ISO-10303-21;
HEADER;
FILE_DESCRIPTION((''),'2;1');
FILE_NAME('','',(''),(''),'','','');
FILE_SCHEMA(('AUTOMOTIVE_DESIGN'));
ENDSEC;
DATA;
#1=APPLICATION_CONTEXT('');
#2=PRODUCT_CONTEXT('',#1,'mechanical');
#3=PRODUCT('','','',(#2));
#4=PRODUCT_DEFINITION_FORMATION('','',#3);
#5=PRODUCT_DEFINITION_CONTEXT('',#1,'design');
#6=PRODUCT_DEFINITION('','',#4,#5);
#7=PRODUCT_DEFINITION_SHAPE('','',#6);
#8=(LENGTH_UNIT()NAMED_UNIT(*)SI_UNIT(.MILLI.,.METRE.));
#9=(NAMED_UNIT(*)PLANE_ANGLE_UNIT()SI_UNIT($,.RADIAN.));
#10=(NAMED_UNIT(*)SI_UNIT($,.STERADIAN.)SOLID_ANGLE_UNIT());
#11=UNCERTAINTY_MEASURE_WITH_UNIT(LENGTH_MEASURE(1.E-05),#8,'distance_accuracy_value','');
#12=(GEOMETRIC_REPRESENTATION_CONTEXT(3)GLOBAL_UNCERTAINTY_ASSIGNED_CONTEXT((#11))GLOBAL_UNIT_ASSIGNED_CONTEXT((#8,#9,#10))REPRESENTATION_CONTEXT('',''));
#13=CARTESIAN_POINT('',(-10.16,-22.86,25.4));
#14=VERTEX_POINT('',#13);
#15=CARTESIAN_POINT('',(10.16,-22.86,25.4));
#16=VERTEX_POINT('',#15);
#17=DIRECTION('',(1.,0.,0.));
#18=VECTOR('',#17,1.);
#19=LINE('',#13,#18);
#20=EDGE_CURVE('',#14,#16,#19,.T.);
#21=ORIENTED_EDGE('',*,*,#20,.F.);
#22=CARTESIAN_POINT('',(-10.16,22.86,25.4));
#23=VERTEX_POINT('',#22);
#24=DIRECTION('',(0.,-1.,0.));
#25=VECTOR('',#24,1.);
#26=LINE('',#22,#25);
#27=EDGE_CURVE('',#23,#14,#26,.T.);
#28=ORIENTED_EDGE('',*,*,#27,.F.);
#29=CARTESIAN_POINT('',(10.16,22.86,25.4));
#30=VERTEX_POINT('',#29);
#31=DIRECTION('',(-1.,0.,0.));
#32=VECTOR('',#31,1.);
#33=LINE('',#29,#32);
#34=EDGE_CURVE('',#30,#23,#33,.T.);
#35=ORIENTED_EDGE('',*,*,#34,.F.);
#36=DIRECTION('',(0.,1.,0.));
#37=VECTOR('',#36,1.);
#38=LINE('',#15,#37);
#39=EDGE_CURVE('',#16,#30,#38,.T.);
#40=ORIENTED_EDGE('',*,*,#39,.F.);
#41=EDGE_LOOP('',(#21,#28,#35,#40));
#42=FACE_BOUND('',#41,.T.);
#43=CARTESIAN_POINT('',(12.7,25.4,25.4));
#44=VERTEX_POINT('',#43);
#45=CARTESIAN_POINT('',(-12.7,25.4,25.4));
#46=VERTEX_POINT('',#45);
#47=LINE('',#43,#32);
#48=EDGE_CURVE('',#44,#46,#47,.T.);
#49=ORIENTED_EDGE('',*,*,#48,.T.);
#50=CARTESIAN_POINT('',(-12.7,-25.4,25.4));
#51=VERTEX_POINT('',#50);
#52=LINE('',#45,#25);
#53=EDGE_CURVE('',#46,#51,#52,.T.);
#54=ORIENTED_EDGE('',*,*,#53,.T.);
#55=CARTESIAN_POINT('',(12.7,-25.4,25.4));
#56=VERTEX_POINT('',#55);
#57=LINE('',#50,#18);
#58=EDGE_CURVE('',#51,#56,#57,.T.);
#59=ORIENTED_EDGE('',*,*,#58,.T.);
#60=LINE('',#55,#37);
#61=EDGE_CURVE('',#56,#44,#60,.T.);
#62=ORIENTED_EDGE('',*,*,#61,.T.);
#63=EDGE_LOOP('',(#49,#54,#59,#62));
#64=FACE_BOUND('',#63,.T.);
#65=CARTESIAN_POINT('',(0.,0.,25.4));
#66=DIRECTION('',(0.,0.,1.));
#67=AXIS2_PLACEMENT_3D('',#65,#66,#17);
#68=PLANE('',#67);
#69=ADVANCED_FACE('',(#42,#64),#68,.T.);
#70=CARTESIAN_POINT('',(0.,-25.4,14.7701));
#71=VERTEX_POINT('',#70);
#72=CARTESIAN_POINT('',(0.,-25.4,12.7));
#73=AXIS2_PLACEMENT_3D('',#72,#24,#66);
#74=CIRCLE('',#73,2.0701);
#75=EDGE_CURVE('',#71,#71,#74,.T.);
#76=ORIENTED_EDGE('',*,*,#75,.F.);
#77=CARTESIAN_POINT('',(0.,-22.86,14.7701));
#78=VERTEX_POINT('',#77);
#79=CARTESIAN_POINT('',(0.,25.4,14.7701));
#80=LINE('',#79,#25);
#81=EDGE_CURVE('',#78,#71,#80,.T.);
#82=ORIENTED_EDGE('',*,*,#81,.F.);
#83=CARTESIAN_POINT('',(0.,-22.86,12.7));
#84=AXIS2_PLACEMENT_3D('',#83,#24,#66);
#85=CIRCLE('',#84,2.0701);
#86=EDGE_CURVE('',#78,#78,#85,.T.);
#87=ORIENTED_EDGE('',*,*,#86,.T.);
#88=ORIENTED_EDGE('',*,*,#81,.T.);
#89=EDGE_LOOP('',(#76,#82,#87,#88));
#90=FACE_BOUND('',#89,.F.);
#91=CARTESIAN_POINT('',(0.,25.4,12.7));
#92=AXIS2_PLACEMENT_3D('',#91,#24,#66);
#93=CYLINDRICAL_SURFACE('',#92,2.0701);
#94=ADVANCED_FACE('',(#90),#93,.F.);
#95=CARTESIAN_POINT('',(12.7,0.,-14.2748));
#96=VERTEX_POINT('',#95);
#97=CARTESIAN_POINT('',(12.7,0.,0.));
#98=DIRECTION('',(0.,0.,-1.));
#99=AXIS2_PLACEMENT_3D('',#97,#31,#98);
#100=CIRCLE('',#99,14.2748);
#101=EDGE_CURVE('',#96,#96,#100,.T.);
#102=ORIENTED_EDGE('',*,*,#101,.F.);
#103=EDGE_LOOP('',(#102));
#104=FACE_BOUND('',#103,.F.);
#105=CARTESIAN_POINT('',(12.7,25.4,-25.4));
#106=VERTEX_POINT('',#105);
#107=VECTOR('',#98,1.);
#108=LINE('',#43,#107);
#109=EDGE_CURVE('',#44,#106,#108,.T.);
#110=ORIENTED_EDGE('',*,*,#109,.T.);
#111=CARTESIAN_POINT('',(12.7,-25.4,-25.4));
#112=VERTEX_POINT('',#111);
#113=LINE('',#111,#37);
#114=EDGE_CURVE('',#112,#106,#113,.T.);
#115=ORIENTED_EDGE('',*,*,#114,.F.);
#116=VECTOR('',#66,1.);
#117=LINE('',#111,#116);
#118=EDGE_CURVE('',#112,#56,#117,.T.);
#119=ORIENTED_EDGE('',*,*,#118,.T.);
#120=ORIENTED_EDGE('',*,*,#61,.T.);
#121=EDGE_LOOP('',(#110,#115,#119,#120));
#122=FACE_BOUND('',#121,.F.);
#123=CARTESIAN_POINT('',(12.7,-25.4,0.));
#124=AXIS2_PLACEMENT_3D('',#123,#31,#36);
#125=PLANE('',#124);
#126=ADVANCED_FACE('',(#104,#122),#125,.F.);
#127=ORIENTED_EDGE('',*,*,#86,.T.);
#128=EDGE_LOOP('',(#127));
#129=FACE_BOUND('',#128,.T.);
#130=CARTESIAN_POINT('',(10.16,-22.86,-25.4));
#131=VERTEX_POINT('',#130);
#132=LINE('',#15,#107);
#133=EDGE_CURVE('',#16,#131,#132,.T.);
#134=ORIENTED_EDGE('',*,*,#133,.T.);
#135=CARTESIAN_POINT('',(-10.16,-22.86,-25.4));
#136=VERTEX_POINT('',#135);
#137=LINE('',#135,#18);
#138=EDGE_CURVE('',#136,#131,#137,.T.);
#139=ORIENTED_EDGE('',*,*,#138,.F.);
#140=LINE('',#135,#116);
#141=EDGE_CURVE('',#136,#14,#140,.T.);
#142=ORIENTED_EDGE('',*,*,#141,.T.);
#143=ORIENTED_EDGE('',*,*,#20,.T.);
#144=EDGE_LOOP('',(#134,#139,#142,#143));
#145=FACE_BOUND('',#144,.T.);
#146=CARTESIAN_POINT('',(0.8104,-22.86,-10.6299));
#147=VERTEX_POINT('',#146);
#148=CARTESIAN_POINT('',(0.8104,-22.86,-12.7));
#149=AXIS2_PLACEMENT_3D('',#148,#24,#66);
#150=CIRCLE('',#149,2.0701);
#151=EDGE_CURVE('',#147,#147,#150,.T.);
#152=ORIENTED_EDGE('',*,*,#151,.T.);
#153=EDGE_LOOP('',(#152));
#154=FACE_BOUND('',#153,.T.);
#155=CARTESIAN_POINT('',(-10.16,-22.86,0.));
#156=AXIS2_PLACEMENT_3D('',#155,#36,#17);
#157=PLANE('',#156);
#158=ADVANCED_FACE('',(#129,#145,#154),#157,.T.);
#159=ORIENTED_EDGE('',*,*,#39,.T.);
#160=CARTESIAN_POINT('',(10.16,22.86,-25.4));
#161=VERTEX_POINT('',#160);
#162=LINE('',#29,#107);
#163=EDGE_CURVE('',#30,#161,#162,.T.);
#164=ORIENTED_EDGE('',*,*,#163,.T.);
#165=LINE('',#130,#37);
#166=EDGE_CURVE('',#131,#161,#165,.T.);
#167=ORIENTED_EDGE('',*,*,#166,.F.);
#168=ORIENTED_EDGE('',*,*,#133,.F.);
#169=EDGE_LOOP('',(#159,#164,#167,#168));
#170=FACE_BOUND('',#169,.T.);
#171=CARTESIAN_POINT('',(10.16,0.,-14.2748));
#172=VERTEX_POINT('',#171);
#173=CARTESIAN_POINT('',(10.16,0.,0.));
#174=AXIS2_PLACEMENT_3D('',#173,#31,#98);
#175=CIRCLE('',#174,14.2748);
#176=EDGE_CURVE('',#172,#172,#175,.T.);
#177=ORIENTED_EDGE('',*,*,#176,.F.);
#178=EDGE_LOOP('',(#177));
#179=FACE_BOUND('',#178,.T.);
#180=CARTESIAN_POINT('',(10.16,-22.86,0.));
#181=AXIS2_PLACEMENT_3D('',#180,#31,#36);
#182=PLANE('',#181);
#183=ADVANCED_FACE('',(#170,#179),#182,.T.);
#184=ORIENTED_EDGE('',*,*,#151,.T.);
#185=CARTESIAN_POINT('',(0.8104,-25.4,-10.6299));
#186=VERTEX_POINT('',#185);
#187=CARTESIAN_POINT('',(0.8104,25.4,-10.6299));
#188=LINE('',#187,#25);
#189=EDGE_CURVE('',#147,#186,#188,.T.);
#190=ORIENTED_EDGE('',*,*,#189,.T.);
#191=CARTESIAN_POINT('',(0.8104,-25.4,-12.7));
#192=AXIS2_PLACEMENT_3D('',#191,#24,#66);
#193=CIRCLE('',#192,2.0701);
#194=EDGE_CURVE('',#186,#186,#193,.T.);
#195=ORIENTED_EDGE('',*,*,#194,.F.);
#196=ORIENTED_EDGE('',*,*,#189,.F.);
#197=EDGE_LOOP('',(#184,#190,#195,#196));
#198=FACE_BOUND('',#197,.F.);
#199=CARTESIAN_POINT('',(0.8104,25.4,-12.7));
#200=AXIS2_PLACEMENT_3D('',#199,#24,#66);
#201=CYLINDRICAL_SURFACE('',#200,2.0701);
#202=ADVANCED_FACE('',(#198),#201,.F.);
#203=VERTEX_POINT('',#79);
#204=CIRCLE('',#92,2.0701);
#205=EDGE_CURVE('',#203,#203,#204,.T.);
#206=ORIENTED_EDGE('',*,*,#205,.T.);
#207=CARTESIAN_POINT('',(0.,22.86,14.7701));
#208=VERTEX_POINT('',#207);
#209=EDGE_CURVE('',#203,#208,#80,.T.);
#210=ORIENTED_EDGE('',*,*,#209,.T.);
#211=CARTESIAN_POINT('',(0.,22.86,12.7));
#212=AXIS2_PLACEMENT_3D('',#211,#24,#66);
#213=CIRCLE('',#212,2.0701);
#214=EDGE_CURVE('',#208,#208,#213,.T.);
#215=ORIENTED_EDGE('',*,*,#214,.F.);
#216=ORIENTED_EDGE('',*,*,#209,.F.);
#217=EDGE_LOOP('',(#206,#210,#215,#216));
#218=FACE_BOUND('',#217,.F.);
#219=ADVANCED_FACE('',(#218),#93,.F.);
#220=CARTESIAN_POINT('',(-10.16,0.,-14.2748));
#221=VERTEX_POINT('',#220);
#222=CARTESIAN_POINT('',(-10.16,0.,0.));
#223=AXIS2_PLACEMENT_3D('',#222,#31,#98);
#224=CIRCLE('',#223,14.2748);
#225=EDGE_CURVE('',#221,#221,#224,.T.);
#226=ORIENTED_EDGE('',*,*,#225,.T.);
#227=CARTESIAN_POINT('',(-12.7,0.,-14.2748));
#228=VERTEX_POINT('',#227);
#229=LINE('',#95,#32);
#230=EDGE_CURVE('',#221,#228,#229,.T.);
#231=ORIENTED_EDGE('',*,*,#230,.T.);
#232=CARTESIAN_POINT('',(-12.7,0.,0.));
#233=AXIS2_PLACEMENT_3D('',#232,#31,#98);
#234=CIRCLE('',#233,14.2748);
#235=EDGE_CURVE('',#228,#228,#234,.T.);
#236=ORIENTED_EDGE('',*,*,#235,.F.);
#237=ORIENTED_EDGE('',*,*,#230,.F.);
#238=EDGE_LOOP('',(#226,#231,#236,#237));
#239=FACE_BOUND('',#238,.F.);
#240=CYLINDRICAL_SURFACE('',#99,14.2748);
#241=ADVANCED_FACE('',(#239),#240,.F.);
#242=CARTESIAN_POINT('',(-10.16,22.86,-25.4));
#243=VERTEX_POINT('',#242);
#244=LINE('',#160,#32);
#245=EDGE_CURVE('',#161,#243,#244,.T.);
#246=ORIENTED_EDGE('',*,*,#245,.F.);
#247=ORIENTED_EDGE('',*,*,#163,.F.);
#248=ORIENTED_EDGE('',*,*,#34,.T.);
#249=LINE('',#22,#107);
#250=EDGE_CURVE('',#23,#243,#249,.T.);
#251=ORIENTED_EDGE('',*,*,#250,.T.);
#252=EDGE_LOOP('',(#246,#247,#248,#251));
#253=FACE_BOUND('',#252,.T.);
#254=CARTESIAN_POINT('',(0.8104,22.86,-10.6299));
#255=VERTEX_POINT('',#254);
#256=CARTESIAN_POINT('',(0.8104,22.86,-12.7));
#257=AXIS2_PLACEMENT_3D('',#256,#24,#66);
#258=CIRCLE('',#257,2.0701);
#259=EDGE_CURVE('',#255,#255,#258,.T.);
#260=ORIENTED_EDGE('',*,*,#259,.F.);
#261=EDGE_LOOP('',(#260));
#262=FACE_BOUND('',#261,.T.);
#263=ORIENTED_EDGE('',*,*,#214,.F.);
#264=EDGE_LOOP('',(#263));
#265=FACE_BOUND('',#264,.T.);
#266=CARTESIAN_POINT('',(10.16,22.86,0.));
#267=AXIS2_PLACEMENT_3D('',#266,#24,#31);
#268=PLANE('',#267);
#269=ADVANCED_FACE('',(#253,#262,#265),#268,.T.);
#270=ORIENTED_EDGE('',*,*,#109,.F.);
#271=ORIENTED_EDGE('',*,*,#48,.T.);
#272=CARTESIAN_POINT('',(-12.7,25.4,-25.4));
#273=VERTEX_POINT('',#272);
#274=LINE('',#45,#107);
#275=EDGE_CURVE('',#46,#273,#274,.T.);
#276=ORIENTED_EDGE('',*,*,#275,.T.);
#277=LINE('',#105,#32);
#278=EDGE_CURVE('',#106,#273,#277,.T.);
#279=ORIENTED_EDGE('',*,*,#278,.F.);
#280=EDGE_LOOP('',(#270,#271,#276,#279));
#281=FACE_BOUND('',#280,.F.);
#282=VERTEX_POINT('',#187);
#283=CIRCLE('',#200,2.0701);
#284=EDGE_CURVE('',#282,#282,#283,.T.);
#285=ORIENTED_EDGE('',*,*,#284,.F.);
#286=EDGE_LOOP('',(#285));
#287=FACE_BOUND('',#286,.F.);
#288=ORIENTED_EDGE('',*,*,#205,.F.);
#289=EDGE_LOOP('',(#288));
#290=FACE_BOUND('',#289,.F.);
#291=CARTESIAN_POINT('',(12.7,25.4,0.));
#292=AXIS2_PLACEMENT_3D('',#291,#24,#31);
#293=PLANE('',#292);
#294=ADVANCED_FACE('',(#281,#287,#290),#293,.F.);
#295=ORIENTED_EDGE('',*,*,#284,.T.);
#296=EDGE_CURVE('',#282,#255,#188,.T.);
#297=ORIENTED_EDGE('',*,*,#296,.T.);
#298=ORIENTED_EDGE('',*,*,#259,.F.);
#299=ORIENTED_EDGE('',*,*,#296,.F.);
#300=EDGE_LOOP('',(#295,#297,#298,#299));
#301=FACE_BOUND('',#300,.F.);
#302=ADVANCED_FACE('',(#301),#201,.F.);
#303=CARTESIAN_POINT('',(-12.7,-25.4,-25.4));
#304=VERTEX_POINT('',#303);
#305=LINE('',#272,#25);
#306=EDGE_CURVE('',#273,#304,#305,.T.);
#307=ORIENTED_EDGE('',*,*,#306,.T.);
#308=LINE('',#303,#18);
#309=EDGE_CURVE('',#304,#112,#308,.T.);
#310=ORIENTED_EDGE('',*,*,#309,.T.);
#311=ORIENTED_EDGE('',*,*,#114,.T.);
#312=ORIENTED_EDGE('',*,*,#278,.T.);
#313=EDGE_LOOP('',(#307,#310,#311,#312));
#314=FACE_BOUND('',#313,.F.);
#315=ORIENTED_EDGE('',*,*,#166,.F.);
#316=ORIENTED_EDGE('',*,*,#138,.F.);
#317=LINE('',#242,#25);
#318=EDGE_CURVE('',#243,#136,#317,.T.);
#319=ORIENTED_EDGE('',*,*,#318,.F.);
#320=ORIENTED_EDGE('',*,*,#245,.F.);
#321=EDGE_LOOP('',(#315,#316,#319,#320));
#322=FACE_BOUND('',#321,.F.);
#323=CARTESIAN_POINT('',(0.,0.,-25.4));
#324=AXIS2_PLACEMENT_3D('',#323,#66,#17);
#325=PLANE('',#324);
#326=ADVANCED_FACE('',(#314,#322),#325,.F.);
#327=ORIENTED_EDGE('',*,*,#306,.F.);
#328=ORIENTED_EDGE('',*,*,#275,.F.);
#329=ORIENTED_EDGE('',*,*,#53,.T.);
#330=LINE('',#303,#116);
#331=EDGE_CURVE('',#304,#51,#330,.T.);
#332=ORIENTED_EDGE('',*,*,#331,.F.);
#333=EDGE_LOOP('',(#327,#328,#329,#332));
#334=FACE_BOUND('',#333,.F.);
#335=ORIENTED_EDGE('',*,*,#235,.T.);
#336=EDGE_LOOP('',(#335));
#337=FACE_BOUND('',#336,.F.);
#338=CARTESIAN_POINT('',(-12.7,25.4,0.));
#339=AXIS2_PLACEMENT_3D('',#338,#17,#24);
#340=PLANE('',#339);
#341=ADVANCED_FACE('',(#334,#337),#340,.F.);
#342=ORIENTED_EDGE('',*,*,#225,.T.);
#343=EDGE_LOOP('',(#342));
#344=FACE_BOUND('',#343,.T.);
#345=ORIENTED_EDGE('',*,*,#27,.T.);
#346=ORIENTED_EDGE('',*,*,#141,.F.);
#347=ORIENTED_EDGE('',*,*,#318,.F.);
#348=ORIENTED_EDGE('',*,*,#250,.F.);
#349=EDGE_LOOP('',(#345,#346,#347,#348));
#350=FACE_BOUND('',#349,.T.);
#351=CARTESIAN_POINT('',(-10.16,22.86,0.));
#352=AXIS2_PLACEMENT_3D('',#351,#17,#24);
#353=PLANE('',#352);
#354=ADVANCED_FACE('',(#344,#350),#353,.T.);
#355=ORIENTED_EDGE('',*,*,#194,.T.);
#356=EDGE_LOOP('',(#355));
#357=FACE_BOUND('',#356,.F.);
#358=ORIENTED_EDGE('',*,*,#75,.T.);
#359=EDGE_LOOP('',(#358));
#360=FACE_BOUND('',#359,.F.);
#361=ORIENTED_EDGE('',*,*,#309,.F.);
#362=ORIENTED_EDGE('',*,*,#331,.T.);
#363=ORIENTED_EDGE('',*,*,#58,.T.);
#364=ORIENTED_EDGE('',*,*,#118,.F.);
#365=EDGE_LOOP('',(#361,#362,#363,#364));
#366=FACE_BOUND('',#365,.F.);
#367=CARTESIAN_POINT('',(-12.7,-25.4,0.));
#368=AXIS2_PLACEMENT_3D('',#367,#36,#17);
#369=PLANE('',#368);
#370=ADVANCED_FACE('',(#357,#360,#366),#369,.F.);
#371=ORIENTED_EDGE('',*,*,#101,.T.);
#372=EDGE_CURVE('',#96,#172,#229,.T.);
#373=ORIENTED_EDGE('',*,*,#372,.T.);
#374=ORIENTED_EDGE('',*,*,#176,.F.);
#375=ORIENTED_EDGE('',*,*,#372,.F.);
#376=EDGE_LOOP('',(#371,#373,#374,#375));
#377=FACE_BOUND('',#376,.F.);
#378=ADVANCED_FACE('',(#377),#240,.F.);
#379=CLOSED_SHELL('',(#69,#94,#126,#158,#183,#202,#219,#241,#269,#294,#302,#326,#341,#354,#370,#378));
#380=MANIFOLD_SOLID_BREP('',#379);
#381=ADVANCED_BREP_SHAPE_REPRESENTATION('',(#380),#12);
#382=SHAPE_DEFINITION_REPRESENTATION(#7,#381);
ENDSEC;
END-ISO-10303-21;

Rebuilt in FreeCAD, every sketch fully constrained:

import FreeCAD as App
import Part
import Sketcher
from FreeCAD import Vector
Q = App.Units.Quantity

doc = App.newDocument("Part")
body = doc.addObject("PartDesign::Body", "Body")

# Sketch on XY plane
sketch1 = doc.addObject("Sketcher::SketchObject", "Sketch")
body.addObject(sketch1)
sketch1.AttachmentSupport = (doc.XY_Plane, [""])
sketch1.MapMode = "FlatFace"
sketch1.addGeometry([
    Part.LineSegment(Vector(-13, 25, 0), Vector(-13, -25, 0)),  # 0
    Part.LineSegment(Vector(-13, -25, 0), Vector(13, -25, 0)),  # 1
    Part.LineSegment(Vector(13, -25, 0), Vector(13, 25, 0)),  # 2
    Part.LineSegment(Vector(13, 25, 0), Vector(-13, 25, 0)),  # 3
    Part.LineSegment(Vector(10, -23, 0), Vector(-10, -23, 0)),  # 4
    Part.LineSegment(Vector(-10, -23, 0), Vector(-10, 23, 0)),  # 5
    Part.LineSegment(Vector(-10, 23, 0), Vector(10, 23, 0)),  # 6
    Part.LineSegment(Vector(10, 23, 0), Vector(10, -23, 0)),  # 7
], False)
sketch1.addConstraint([
    Sketcher.Constraint("Coincident", 0, 2, 1, 1),
    Sketcher.Constraint("Coincident", 1, 2, 2, 1),
    Sketcher.Constraint("Coincident", 2, 2, 3, 1),
    Sketcher.Constraint("Coincident", 3, 2, 0, 1),
    Sketcher.Constraint("Coincident", 4, 2, 5, 1),
    Sketcher.Constraint("Coincident", 5, 2, 6, 1),
    Sketcher.Constraint("Coincident", 6, 2, 7, 1),
    Sketcher.Constraint("Coincident", 7, 2, 4, 1),
    Sketcher.Constraint("Vertical", 0),
    Sketcher.Constraint("Horizontal", 1),
    Sketcher.Constraint("Vertical", 2),
    Sketcher.Constraint("Horizontal", 3),
    Sketcher.Constraint("Horizontal", 4),
    Sketcher.Constraint("Vertical", 5),
    Sketcher.Constraint("Horizontal", 6),
    Sketcher.Constraint("Vertical", 7),
    Sketcher.Constraint("Symmetric", 0, 2, 2, 2, -1, 1),
    Sketcher.Constraint("Symmetric", 4, 2, 6, 2, -1, 1),
    Sketcher.Constraint("DistanceX", 1, 1, 1, 2, Q("1 in")),
    Sketcher.Constraint("DistanceY", 0, 2, 0, 1, Q("2 in")),
    Sketcher.Constraint("DistanceX", 4, 2, 4, 1, Q("0.8 in")),
    Sketcher.Constraint("DistanceY", 5, 1, 5, 2, Q("1.8 in")),
])
pad1 = doc.addObject("PartDesign::Pad", "Pad")
body.addObject(pad1)
pad1.Profile = sketch1
pad1.Length = Q("2 in")
pad1.Midplane = True

# Sketch on XZ plane
sketch2 = doc.addObject("Sketcher::SketchObject", "Sketch001")
body.addObject(sketch2)
sketch2.AttachmentSupport = (doc.XZ_Plane, [""])
sketch2.MapMode = "FlatFace"
sketch2.AttachmentOffset = App.Placement(Vector(0, 0, -1 * 25.4), App.Rotation())
sketch2.addGeometry([
    Part.Circle(Vector(0, 12.7, 0), Vector(0, 0, 1), 2.1),
    Part.Circle(Vector(0.8, -12.7, 0), Vector(0, 0, 1), 2.1),
], False)
sketch2.addConstraint([
    Sketcher.Constraint("Equal", 0, 1),
    Sketcher.Constraint("PointOnObject", 0, 3, -2),
    Sketcher.Constraint("Diameter", 0, Q("0.163 in")),
    Sketcher.Constraint("DistanceY", 1, 3, 0, 3, Q("1 in")),
    Sketcher.Constraint("DistanceY", -1, 1, 0, 3, Q("0.5 in")),
    Sketcher.Constraint("DistanceX", -1, 1, 1, 3, Q("0.0319 in")),
])
doc.recompute()
hole = doc.addObject("PartDesign::Hole", "Hole")
body.addObject(hole)
hole.Profile = sketch2
hole.ThreadType = "None"
hole.Diameter = Q("0.163 in")
hole.DepthType = "ThroughAll"
hole.Reversed = True

# Sketch on YZ plane
sketch3 = doc.addObject("Sketcher::SketchObject", "Sketch002")
body.addObject(sketch3)
sketch3.AttachmentSupport = (doc.YZ_Plane, [""])
sketch3.MapMode = "FlatFace"
sketch3.AttachmentOffset = App.Placement(Vector(0, 0, 0.5 * 25.4), App.Rotation())
sketch3.addGeometry(Part.Circle(Vector(0, 0, 0), Vector(0, 0, 1), 14), False)
sketch3.addConstraint([
    Sketcher.Constraint("Coincident", 0, 3, -1, 1),
    Sketcher.Constraint("Diameter", 0, Q("1.124 in")),
])
doc.recompute()
hole2 = doc.addObject("PartDesign::Hole", "Hole001")
body.addObject(hole2)
hole2.Profile = sketch3
hole2.ThreadType = "None"
hole2.Diameter = Q("1.124 in")
hole2.DepthType = "ThroughAll"

doc.recompute()
